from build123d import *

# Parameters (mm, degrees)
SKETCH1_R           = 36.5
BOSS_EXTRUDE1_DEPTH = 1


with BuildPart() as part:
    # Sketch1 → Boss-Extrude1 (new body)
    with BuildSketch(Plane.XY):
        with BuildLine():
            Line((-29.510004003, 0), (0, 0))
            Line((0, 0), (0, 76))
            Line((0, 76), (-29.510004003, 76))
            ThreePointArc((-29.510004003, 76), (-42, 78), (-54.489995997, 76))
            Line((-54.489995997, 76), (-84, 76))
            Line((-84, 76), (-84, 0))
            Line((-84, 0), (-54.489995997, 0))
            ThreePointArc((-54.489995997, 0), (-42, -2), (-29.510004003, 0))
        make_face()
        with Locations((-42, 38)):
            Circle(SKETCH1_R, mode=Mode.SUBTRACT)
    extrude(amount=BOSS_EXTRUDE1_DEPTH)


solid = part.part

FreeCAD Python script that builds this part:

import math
import FreeCAD as App
import Part
import Sketcher
from FreeCAD import Vector

doc = App.newDocument("Part")
body = doc.addObject("PartDesign::Body", "Body")

# Sketch on XY plane
sketch1 = body.newObject("Sketcher::SketchObject", "Sketch")
sketch1.AttachmentSupport = (doc.getObject("XY_Plane"), [""])
sketch1.MapMode = "FlatFace"
sketch1.addGeometry([
    Part.LineSegment(Vector(-30, 0, 0), Vector(0, 0, 0)),  # 0
    Part.LineSegment(Vector(0, 0, 0), Vector(0, 76, 0)),  # 1
    Part.LineSegment(Vector(0, 76, 0), Vector(-30, 76, 0)),  # 2
    Part.ArcOfCircle(Part.Circle(Vector(-42, 38, 0), Vector(0, 0, 1), 40), math.radians(72), math.radians(108)),  # 3
    Part.LineSegment(Vector(-54, 76, 0), Vector(-84, 76, 0)),  # 4
    Part.LineSegment(Vector(-84, 76, 0), Vector(-84, 0, 0)),  # 5
    Part.LineSegment(Vector(-84, 0, 0), Vector(-54, 0, 0)),  # 6
    Part.ArcOfCircle(Part.Circle(Vector(-42, 38, 0), Vector(0, 0, 1), 40), math.radians(-108), math.radians(-72)),  # 7
    Part.Circle(Vector(-42, 38, 0), Vector(0, 0, 1), 36),  # 8
], False)
sketch1.addConstraint([
    Sketcher.Constraint("Coincident", 0, 2, 1, 1),
    Sketcher.Constraint("Coincident", 1, 2, 2, 1),
    Sketcher.Constraint("Coincident", 2, 2, 3, 1),
    Sketcher.Constraint("Coincident", 3, 2, 4, 1),
    Sketcher.Constraint("Coincident", 4, 2, 5, 1),
    Sketcher.Constraint("Coincident", 5, 2, 6, 1),
    Sketcher.Constraint("Coincident", 6, 2, 7, 1),
    Sketcher.Constraint("Coincident", 7, 2, 0, 1),
    Sketcher.Constraint("Horizontal", 0),
    Sketcher.Constraint("Vertical", 1),
    Sketcher.Constraint("Horizontal", 2),
    Sketcher.Constraint("Horizontal", 4),
    Sketcher.Constraint("Vertical", 5),
    Sketcher.Constraint("Horizontal", 6),
    Sketcher.Constraint("Coincident", 0, 2, -1, 1),
    Sketcher.Constraint("Coincident", 7, 3, 3, 3),
    Sketcher.Constraint("Coincident", 8, 3, 3, 3),
    Sketcher.Constraint("Equal", 3, 7),
    Sketcher.Constraint("PointOnObject", 5, 2, -1),
    Sketcher.Constraint("Horizontal", 2, 2, 3, 2),
    Sketcher.Constraint("Vertical", 3, 2, 6, 2),
    Sketcher.Constraint("Equal", 2, 4),
    Sketcher.Constraint("Diameter", 8, 73.0),
    Sketcher.Constraint("Radius", 3, 40.0),
    Sketcher.Constraint("DistanceY", 1, 1, 1, 2, 76.0),
    Sketcher.Constraint("DistanceX", 3, 3, -1, 1, 42.0),
])
pad1 = body.newObject("PartDesign::Pad", "Pad")
pad1.Profile = sketch1
pad1.Length = 1

doc.recompute()
